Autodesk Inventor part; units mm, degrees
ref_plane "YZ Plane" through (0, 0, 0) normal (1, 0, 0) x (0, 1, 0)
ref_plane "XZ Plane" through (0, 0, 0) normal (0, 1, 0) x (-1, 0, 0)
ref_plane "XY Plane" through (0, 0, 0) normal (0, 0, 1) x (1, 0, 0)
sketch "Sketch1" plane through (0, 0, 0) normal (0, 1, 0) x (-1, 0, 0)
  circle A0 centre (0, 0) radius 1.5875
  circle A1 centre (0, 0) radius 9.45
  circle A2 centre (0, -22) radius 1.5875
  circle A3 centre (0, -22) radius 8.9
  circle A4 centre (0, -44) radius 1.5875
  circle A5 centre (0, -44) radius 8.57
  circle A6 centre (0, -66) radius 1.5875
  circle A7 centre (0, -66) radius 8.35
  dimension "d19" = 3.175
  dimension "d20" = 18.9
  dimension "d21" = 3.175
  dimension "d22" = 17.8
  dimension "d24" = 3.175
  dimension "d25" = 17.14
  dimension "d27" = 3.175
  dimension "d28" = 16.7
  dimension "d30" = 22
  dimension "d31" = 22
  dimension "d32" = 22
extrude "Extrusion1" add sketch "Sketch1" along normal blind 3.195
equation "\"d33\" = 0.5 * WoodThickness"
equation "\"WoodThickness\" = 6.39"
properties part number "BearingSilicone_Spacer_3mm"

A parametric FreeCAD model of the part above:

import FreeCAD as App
import Part
import Sketcher
from FreeCAD import Vector
Q = App.Units.Quantity

doc = App.newDocument("Part")
body = doc.addObject("PartDesign::Body", "Body")
body.AllowCompound = True

# Sketch on XZ plane
sketch1 = body.newObject("Sketcher::SketchObject", "Sketch")
sketch1.AttachmentSupport = (doc.getObject("XZ_Plane"), [""])
sketch1.MapMode = "FlatFace"
sketch1.addGeometry([
    Part.Circle(Vector(0, 0, 0), Vector(0, 0, 1), 9.45),  # 0
    Part.Circle(Vector(0, 0, 0), Vector(0, 0, 1), 1.5875),  # 1
    Part.Circle(Vector(0, -22, 0), Vector(0, 0, 1), 8.9),  # 2
    Part.Circle(Vector(0, -22, 0), Vector(0, 0, 1), 1.5875),  # 3
    Part.Circle(Vector(0, -44, 0), Vector(0, 0, 1), 8.57),  # 4
    Part.Circle(Vector(0, -44, 0), Vector(0, 0, 1), 1.5875),  # 5
    Part.Circle(Vector(0, -66, 0), Vector(0, 0, 1), 8.35),  # 6
    Part.Circle(Vector(0, -66, 0), Vector(0, 0, 1), 1.5875),  # 7
], False)
sketch1.addConstraint([
    Sketcher.Constraint("Coincident", 0, 3, -1, 1),
    Sketcher.Constraint("Coincident", 1, 3, -1, 1),
    Sketcher.Constraint("Coincident", 3, 3, 2, 3),
    Sketcher.Constraint("Coincident", 5, 3, 4, 3),
    Sketcher.Constraint("Coincident", 7, 3, 6, 3),
    Sketcher.Constraint("Equal", 1, 3),
    Sketcher.Constraint("Equal", 3, 5),
    Sketcher.Constraint("Equal", 5, 7),
    Sketcher.Constraint("PointOnObject", 2, 3, -2),
    Sketcher.Constraint("PointOnObject", 4, 3, -2),
    Sketcher.Constraint("PointOnObject", 6, 3, -2),
    Sketcher.Constraint("Diameter", 0, Q("18.9 mm")),
    Sketcher.Constraint("Diameter", 2, Q("17.8 mm")),
    Sketcher.Constraint("Diameter", 6, Q("16.7 mm")),
    Sketcher.Constraint("Diameter", 4, Q("17.14 mm")),
    Sketcher.Constraint("Diameter", 1, Q("3.175 mm")),
    Sketcher.Constraint("DistanceY", 2, 3, -1, 1, Q("22 mm")),
    Sketcher.Constraint("DistanceY", 4, 3, 2, 3, Q("22 mm")),
    Sketcher.Constraint("DistanceY", 6, 3, 4, 3, Q("22 mm")),
])
pad1 = body.newObject("PartDesign::Pad", "Pad")
pad1.Profile = sketch1
pad1.Length = 3.195
pad1.Reversed = True

doc.recompute()
